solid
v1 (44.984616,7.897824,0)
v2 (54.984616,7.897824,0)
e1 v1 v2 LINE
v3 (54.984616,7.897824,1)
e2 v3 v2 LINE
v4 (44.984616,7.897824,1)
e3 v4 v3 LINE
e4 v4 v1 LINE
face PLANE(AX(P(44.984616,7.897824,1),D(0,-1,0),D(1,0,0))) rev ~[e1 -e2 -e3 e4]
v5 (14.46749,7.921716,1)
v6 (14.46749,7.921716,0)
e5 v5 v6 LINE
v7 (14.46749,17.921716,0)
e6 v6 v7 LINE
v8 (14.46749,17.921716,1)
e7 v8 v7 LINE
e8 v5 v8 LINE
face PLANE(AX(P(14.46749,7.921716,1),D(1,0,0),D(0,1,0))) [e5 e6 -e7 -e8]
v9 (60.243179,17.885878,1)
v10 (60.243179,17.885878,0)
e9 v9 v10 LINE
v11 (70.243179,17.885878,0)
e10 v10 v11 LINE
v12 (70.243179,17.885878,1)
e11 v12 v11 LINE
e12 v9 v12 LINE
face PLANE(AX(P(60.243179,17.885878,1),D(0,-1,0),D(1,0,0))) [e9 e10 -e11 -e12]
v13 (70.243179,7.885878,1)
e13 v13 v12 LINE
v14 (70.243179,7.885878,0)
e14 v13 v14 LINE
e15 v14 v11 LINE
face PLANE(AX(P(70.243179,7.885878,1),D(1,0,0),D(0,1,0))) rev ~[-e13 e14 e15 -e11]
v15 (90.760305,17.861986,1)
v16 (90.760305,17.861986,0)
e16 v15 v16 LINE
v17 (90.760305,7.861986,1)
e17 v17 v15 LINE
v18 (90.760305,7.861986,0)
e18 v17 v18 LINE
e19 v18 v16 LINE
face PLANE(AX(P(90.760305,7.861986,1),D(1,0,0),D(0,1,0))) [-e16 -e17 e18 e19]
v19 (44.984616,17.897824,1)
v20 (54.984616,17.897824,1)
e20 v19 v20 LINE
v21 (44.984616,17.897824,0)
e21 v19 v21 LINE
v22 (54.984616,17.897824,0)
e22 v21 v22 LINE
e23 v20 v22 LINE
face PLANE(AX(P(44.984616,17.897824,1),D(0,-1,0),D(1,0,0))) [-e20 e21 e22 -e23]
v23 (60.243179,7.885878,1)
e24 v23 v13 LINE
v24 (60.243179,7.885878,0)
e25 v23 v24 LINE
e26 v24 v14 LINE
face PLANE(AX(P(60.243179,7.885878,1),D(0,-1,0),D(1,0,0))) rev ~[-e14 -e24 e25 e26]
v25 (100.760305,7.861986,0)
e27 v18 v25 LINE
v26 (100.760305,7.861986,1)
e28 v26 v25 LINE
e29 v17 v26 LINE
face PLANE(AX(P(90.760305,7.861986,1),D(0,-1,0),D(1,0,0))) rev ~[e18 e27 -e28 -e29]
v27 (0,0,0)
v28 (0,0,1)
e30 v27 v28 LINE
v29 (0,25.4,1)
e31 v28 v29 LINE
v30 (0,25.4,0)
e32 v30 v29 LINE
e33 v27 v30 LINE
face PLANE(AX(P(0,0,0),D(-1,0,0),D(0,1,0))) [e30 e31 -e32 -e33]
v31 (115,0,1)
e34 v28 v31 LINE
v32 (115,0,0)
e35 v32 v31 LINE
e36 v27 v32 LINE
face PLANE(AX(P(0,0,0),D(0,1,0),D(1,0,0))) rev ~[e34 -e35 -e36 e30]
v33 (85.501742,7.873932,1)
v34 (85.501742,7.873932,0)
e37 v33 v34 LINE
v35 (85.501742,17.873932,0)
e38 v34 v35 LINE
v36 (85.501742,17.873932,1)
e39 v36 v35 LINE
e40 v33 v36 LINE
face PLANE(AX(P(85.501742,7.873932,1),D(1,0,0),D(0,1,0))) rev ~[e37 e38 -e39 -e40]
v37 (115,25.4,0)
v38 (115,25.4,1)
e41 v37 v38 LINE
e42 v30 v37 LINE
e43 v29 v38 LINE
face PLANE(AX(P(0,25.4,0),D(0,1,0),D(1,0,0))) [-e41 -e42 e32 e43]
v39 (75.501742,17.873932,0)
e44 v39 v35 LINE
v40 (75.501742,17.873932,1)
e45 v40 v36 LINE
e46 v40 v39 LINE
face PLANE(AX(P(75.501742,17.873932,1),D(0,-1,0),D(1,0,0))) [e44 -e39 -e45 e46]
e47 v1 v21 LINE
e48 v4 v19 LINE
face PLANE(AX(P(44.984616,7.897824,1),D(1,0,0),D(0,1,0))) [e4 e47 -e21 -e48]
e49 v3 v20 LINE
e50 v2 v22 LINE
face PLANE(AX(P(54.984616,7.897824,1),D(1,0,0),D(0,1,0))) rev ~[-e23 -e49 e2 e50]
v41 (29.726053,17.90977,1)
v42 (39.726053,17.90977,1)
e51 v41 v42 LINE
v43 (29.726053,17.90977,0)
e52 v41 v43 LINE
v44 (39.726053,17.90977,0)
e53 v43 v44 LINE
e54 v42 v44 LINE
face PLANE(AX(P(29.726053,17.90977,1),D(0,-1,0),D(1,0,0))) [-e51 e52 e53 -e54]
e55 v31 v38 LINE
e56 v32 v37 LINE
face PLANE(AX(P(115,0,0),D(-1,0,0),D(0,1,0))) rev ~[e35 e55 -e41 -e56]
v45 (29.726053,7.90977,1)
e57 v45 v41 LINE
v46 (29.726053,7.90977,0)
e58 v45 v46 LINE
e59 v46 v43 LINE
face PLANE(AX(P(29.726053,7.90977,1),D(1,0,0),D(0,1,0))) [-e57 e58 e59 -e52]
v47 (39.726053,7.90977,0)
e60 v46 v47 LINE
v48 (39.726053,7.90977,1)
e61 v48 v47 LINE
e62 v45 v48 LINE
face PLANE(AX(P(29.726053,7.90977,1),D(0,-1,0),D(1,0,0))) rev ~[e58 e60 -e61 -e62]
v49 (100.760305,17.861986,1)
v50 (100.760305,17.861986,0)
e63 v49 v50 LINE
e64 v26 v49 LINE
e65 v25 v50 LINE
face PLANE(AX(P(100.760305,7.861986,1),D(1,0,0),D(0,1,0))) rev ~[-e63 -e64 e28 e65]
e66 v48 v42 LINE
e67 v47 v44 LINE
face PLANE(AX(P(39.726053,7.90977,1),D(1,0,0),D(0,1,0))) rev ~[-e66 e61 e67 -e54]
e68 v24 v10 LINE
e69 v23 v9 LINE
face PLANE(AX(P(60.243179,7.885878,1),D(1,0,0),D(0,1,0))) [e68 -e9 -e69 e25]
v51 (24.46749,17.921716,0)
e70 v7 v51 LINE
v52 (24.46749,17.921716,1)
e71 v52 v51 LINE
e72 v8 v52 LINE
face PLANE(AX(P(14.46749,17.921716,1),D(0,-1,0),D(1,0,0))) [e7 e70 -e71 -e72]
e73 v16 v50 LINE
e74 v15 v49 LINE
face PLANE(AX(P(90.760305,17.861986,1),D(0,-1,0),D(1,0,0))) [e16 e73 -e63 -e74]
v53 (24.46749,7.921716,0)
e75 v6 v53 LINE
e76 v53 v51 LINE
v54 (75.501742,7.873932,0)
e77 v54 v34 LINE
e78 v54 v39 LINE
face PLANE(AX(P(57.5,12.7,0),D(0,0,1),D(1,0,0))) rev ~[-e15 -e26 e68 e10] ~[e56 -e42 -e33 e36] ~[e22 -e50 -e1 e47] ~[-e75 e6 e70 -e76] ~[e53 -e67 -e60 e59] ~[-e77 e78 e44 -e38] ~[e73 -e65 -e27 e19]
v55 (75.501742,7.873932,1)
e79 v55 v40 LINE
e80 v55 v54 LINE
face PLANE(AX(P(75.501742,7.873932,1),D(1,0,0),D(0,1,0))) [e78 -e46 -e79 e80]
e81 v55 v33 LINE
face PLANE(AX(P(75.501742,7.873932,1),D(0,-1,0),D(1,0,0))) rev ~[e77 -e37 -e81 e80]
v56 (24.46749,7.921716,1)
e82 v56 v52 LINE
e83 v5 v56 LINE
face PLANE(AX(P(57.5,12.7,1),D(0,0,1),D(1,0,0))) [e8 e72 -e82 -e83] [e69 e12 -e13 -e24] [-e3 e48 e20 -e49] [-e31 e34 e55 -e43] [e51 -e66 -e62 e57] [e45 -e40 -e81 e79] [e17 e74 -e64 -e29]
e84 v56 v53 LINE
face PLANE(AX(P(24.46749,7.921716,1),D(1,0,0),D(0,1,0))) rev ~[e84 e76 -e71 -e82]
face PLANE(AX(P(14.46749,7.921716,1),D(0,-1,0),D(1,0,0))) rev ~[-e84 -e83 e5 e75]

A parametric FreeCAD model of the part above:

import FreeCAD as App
import Part
import Sketcher

V = App.Vector
Q = App.Units.Quantity


def add_polygon(sketch, points):
    """Adds a closed chain of lines whose ends are joined by coincident constraints."""
    first, n = sketch.GeometryCount, len(points)
    for a, b in zip(points, points[1:] + points[:1]):
        sketch.addGeometry(Part.LineSegment(App.Vector(*a, 0), App.Vector(*b, 0)), False)
    for i in range(n):
        sketch.addConstraint(Sketcher.Constraint("Coincident", first + i, 2, first + (i + 1) % n, 1))

doc = App.newDocument("Part")
body = doc.addObject("PartDesign::Body", "Body")

sketch1 = body.newObject("Sketcher::SketchObject", "Sketch")
sketch1.AttachmentSupport = (doc.getObject("XY_Plane"), [""])
sketch1.MapMode = "FlatFace"
add_polygon(sketch1, [(0, 25), (0, 0), (115, 0), (115, 25)])
sketch1.addConstraint([
    Sketcher.Constraint("Vertical", 0),
    Sketcher.Constraint("Horizontal", 1),
    Sketcher.Constraint("Vertical", 2),
    Sketcher.Constraint("Horizontal", 3),
    Sketcher.Constraint("Coincident", 0, 2, -1, 1),
    Sketcher.Constraint("DistanceX", 1, 1, 1, 2, Q("115 mm")),
    Sketcher.Constraint("DistanceY", 0, 2, 0, 1, Q("25.4 mm")),
])
pad1 = body.newObject("PartDesign::Pad", "Pad")
pad1.Profile = sketch1
pad1.Length = 1

sketch2 = body.newObject("Sketcher::SketchObject", "Sketch001")
sketch2.AttachmentSupport = (doc.getObject("XY_Plane"), [""])
sketch2.MapMode = "FlatFace"
sketch2.AttachmentOffset = App.Placement(V(0, 0, 1), App.Rotation())
add_polygon(sketch2, [(14, 18), (14, 8), (24, 8), (24, 18)])
add_polygon(sketch2, [(30, 18), (30, 8), (40, 8), (40, 18)])
add_polygon(sketch2, [(45, 18), (45, 8), (55, 8), (55, 18)])
add_polygon(sketch2, [(60, 18), (60, 8), (70, 8), (70, 18)])
add_polygon(sketch2, [(76, 18), (76, 8), (86, 8), (86, 18)])
add_polygon(sketch2, [(91, 18), (91, 8), (101, 8), (101, 18)])
sketch2.addConstraint([
    Sketcher.Constraint("Vertical", 0),
    Sketcher.Constraint("Horizontal", 1),
    Sketcher.Constraint("Vertical", 2),
    Sketcher.Constraint("Horizontal", 3),
    Sketcher.Constraint("Vertical", 4),
    Sketcher.Constraint("Horizontal", 5),
    Sketcher.Constraint("Vertical", 6),
    Sketcher.Constraint("Horizontal", 7),
    Sketcher.Constraint("Vertical", 8),
    Sketcher.Constraint("Horizontal", 9),
    Sketcher.Constraint("Vertical", 10),
    Sketcher.Constraint("Horizontal", 11),
    Sketcher.Constraint("Vertical", 12),
    Sketcher.Constraint("Horizontal", 13),
    Sketcher.Constraint("Vertical", 14),
    Sketcher.Constraint("Horizontal", 15),
    Sketcher.Constraint("Vertical", 16),
    Sketcher.Constraint("Horizontal", 17),
    Sketcher.Constraint("Vertical", 18),
    Sketcher.Constraint("Horizontal", 19),
    Sketcher.Constraint("Vertical", 20),
    Sketcher.Constraint("Horizontal", 21),
    Sketcher.Constraint("Vertical", 22),
    Sketcher.Constraint("Horizontal", 23),
    Sketcher.Constraint("Equal", 3, 5),
    Sketcher.Constraint("Equal", 7, 9),
    Sketcher.Constraint("Equal", 11, 13),
    Sketcher.Constraint("Equal", 15, 17),
    Sketcher.Constraint("Equal", 19, 21),
    Sketcher.Constraint("Equal", 23, 0),
    Sketcher.Constraint("Equal", 2, 4),
    Sketcher.Constraint("Equal", 6, 8),
    Sketcher.Constraint("Equal", 10, 12),
    Sketcher.Constraint("Equal", 14, 16),
    Sketcher.Constraint("Equal", 18, 20),
    Sketcher.Constraint("DistanceX", 1, 1, 1, 2, Q("10 mm")),
    Sketcher.Constraint("DistanceX", -1, 1, 0, 2, Q("14.46749 mm")),
    Sketcher.Constraint("DistanceY", -1, 1, 4, 2, Q("7.90977 mm")),
    Sketcher.Constraint("DistanceX", -1, 1, 12, 2, Q("60.243179 mm")),
    Sketcher.Constraint("DistanceY", -1, 1, 14, 2, Q("17.885878 mm")),
    Sketcher.Constraint("DistanceX", -1, 1, 16, 2, Q("75.501742 mm")),
    Sketcher.Constraint("DistanceY", -1, 1, 18, 2, Q("17.873932 mm")),
    Sketcher.Constraint("DistanceY", -1, 1, 0, 2, Q("7.921716 mm")),
    Sketcher.Constraint("DistanceX", -1, 1, 4, 2, Q("29.726053 mm")),
    Sketcher.Constraint("DistanceX", -1, 1, 8, 2, Q("44.984616 mm")),
    Sketcher.Constraint("DistanceY", -1, 1, 8, 2, Q("7.897824 mm")),
    Sketcher.Constraint("DistanceX", -1, 1, 20, 2, Q("90.760305 mm")),
    Sketcher.Constraint("DistanceY", -1, 1, 20, 2, Q("7.861986 mm")),
])
pocket1 = body.newObject("PartDesign::Pocket", "Pocket")
pocket1.Profile = sketch2
pocket1.Type = "ThroughAll"

doc.recompute()
